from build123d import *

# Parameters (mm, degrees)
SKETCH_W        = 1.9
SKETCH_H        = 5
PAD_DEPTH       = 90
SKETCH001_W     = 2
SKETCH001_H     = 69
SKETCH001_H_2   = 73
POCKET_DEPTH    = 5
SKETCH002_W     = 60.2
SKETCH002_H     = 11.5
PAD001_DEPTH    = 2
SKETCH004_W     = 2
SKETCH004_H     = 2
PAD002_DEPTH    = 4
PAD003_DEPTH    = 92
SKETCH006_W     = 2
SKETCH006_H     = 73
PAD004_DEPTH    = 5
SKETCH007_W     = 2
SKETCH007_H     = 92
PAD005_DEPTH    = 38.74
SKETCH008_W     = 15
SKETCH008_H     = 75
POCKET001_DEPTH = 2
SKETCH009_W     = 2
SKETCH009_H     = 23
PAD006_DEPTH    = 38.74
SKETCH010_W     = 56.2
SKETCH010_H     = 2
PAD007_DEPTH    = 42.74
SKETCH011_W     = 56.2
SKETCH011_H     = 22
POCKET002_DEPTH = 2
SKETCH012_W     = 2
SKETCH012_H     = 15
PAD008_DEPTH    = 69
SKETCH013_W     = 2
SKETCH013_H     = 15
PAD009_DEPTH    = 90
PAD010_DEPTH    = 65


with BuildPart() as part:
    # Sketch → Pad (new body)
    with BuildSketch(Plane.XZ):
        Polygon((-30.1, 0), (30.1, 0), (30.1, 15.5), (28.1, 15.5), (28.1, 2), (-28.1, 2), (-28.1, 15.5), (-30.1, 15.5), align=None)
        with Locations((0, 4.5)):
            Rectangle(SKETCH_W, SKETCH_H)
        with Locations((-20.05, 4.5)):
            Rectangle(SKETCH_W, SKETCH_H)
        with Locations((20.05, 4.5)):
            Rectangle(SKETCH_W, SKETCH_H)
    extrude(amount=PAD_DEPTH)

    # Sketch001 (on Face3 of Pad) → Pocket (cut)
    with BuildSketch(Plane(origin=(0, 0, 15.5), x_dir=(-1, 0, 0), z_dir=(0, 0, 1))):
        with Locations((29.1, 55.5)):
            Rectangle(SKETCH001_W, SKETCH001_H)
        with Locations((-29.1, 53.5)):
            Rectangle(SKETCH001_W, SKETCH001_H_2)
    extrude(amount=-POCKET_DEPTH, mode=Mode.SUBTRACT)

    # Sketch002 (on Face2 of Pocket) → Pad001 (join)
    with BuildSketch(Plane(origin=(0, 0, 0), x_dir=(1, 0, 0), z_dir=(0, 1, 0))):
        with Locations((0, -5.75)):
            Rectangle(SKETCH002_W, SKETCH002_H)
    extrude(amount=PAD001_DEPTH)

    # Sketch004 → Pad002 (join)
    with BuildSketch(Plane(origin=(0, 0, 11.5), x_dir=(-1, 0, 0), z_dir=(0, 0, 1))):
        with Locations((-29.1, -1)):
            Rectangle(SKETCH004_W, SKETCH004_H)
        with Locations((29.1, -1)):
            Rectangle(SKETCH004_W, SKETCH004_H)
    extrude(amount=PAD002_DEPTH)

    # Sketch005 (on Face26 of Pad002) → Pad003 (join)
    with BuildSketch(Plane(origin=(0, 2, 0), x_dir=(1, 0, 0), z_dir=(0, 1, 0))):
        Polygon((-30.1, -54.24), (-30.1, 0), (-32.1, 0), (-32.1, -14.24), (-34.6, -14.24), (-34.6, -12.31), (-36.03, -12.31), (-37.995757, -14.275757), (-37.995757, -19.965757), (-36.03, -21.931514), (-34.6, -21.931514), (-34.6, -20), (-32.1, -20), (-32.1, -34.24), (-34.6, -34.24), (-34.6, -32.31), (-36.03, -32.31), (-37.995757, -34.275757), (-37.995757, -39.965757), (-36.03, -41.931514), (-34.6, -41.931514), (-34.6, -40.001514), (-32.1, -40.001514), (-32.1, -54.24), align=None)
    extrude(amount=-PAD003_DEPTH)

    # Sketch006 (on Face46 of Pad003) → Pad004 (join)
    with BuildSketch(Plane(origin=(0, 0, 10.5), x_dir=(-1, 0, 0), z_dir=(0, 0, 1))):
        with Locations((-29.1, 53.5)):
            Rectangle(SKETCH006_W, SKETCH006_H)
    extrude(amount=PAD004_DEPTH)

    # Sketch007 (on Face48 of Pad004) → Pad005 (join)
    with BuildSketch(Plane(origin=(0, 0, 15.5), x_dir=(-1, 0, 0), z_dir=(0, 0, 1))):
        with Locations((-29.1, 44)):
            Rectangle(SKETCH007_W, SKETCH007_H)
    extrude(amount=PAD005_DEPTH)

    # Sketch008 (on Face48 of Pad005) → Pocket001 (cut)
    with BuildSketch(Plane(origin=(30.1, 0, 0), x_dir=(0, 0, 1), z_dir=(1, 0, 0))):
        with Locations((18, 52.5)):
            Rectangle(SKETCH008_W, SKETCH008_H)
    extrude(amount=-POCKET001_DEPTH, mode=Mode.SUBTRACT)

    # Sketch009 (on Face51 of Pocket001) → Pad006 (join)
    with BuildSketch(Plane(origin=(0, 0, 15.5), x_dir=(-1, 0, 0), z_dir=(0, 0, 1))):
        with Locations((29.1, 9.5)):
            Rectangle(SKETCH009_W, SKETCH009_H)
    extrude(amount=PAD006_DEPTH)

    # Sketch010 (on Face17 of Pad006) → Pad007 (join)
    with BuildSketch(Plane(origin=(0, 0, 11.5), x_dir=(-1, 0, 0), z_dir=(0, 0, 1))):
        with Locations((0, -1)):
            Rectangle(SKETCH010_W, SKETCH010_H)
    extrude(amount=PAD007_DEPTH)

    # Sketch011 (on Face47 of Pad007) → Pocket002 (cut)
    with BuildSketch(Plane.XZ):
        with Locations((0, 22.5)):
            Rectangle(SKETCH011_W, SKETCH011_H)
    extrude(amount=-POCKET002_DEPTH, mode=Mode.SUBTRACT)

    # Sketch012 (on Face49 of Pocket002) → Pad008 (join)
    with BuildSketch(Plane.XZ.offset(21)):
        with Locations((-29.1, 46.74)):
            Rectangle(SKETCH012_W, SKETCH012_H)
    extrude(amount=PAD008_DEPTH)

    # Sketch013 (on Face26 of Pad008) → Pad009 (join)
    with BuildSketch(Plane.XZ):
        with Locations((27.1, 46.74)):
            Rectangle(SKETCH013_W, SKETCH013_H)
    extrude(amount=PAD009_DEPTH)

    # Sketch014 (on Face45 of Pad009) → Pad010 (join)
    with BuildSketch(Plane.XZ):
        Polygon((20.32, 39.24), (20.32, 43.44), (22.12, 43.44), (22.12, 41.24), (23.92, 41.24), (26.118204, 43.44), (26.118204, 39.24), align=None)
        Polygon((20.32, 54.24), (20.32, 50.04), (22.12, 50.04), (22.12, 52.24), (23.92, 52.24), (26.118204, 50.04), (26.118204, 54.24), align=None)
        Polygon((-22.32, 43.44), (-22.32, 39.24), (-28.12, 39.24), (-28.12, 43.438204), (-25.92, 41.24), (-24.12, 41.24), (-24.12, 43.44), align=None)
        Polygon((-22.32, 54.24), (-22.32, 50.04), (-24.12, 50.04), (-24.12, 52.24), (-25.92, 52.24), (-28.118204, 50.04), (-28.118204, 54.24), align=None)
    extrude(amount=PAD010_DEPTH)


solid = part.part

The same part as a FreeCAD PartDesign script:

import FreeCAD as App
import Part
import Sketcher
from FreeCAD import Vector
Q = App.Units.Quantity

doc = App.newDocument("Part")
body = doc.addObject("PartDesign::Body", "Body")

sketch1 = body.newObject("Sketcher::SketchObject", "Sketch")
sketch1.AttachmentSupport = (doc.getObject("XZ_Plane"), [""])
sketch1.MapMode = "FlatFace"
sketch1.addGeometry(Part.LineSegment(Vector(-30.1, 0, 0), Vector(30.1, 0, 0)), False)
sketch1.addGeometry(Part.LineSegment(Vector(30.1, 0, 0), Vector(30.1, 15.5, 0)), False)
sketch1.addGeometry(Part.LineSegment(Vector(30.1, 15.5, 0), Vector(28.1, 15.5, 0)), False)
sketch1.addGeometry(Part.LineSegment(Vector(28.1, 15.5, 0), Vector(28.1, 2, 0)), False)
sketch1.addGeometry(Part.LineSegment(Vector(28.1, 2, 0), Vector(21, 2, 0)), False)
sketch1.addGeometry(Part.LineSegment(Vector(21, 2, 0), Vector(21, 7, 0)), False)
sketch1.addGeometry(Part.LineSegment(Vector(21, 7, 0), Vector(19.1, 7, 0)), False)
sketch1.addGeometry(Part.LineSegment(Vector(19.1, 7, 0), Vector(19.1, 2, 0)), False)
sketch1.addGeometry(Part.LineSegment(Vector(19.1, 2, 0), Vector(0.95, 2, 0)), False)
sketch1.addGeometry(Part.LineSegment(Vector(0.95, 2, 0), Vector(0.95, 7, 0)), False)
sketch1.addGeometry(Part.LineSegment(Vector(0.95, 7, 0), Vector(-0.95, 7, 0)), False)
sketch1.addGeometry(Part.LineSegment(Vector(-0.95, 7, 0), Vector(-0.95, 2, 0)), False)
sketch1.addGeometry(Part.LineSegment(Vector(-0.95, 2, 0), Vector(-19.1, 2, 0)), False)
sketch1.addGeometry(Part.LineSegment(Vector(-19.1, 2, 0), Vector(-19.1, 7, 0)), False)
sketch1.addGeometry(Part.LineSegment(Vector(-19.1, 7, 0), Vector(-21, 7, 0)), False)
sketch1.addGeometry(Part.LineSegment(Vector(-21, 7, 0), Vector(-21, 2, 0)), False)
sketch1.addGeometry(Part.LineSegment(Vector(-21, 2, 0), Vector(-28.1, 2, 0)), False)
sketch1.addGeometry(Part.LineSegment(Vector(-28.1, 2, 0), Vector(-28.1, 15.5, 0)), False)
sketch1.addGeometry(Part.LineSegment(Vector(-28.1, 15.5, 0), Vector(-30.1, 15.5, 0)), False)
sketch1.addGeometry(Part.LineSegment(Vector(-30.1, 15.5, 0), Vector(-30.1, 0, 0)), False)
sketch1.addConstraint(Sketcher.Constraint("Coincident", 0, 2, 1, 1))
sketch1.addConstraint(Sketcher.Constraint("Coincident", 1, 2, 2, 1))
sketch1.addConstraint(Sketcher.Constraint("Coincident", 2, 2, 3, 1))
sketch1.addConstraint(Sketcher.Constraint("Coincident", 3, 2, 4, 1))
sketch1.addConstraint(Sketcher.Constraint("Coincident", 4, 2, 5, 1))
sketch1.addConstraint(Sketcher.Constraint("Coincident", 5, 2, 6, 1))
sketch1.addConstraint(Sketcher.Constraint("Coincident", 6, 2, 7, 1))
sketch1.addConstraint(Sketcher.Constraint("Coincident", 7, 2, 8, 1))
sketch1.addConstraint(Sketcher.Constraint("Coincident", 8, 2, 9, 1))
sketch1.addConstraint(Sketcher.Constraint("Coincident", 9, 2, 10, 1))
sketch1.addConstraint(Sketcher.Constraint("Coincident", 10, 2, 11, 1))
sketch1.addConstraint(Sketcher.Constraint("Coincident", 11, 2, 12, 1))
sketch1.addConstraint(Sketcher.Constraint("Coincident", 12, 2, 13, 1))
sketch1.addConstraint(Sketcher.Constraint("Coincident", 13, 2, 14, 1))
sketch1.addConstraint(Sketcher.Constraint("Coincident", 14, 2, 15, 1))
sketch1.addConstraint(Sketcher.Constraint("Coincident", 15, 2, 16, 1))
sketch1.addConstraint(Sketcher.Constraint("Coincident", 16, 2, 17, 1))
sketch1.addConstraint(Sketcher.Constraint("Coincident", 17, 2, 18, 1))
sketch1.addConstraint(Sketcher.Constraint("Coincident", 18, 2, 19, 1))
sketch1.addConstraint(Sketcher.Constraint("Coincident", 19, 2, 0, 1))
sketch1.addConstraint(Sketcher.Constraint("Horizontal", 0))
sketch1.addConstraint(Sketcher.Constraint("Vertical", 1))
sketch1.addConstraint(Sketcher.Constraint("Horizontal", 2))
sketch1.addConstraint(Sketcher.Constraint("Vertical", 3))
sketch1.addConstraint(Sketcher.Constraint("Horizontal", 4))
sketch1.addConstraint(Sketcher.Constraint("Vertical", 5))
sketch1.addConstraint(Sketcher.Constraint("Horizontal", 6))
sketch1.addConstraint(Sketcher.Constraint("Vertical", 7))
sketch1.addConstraint(Sketcher.Constraint("Horizontal", 8))
sketch1.addConstraint(Sketcher.Constraint("Vertical", 9))
sketch1.addConstraint(Sketcher.Constraint("Horizontal", 10))
sketch1.addConstraint(Sketcher.Constraint("Vertical", 11))
sketch1.addConstraint(Sketcher.Constraint("Horizontal", 12))
sketch1.addConstraint(Sketcher.Constraint("Vertical", 13))
sketch1.addConstraint(Sketcher.Constraint("Horizontal", 14))
sketch1.addConstraint(Sketcher.Constraint("Vertical", 15))
sketch1.addConstraint(Sketcher.Constraint("Horizontal", 16))
sketch1.addConstraint(Sketcher.Constraint("Vertical", 17))
sketch1.addConstraint(Sketcher.Constraint("Horizontal", 18))
sketch1.addConstraint(Sketcher.Constraint("Vertical", 19))
sketch1.addConstraint(Sketcher.Constraint("Symmetric", 0, 2, 19, 2, -1, 1))
sketch1.addConstraint(Sketcher.Constraint("Symmetric", 8, 2, 11, 2, -2))
sketch1.addConstraint(Sketcher.Constraint("Symmetric", 6, 2, 13, 2, -2))
sketch1.addConstraint(Sketcher.Constraint("Symmetric", 4, 2, 15, 2, -2))
sketch1.addConstraint(Sketcher.Constraint("Symmetric", 2, 2, 17, 2, -2))
sketch1.addConstraint(Sketcher.Constraint("Horizontal", 4, 2, 7, 2))
sketch1.addConstraint(Sketcher.Constraint("Horizontal", 6, 2, 9, 2))
sketch1.addConstraint(Sketcher.Constraint("Equal", 6, 10))
sketch1.addConstraint(Sketcher.Constraint("DistanceX", 2, 2, 2, 1, Q("2 mm")))
sketch1.addConstraint(Sketcher.Constraint("DistanceY", 5, 1, 5, 2, Q("5 mm")))
sketch1.addConstraint(Sketcher.Constraint("DistanceX", 0, 1, 0, 2, Q("60.2 mm")))
sketch1.addConstraint(Sketcher.Constraint("DistanceX", 4, 2, 4, 1, Q("7.1 mm")))
sketch1.addConstraint(Sketcher.Constraint("DistanceX", 6, 2, 6, 1, Q("1.9 mm")))
sketch1.addConstraint(Sketcher.Constraint("DistanceY", 1, 1, 1, 2, Q("15.5 mm")))
sketch1.addConstraint(Sketcher.Constraint("DistanceY", 3, 2, 3, 1, Q("13.5 mm")))
pad1 = body.newObject("PartDesign::Pad", "Pad")
pad1.Profile = sketch1
pad1.Length = 90

sketch2 = body.newObject("Sketcher::SketchObject", "Sketch001")
sketch2.AttachmentSupport = (doc.getObject("XY_Plane"), [""])
sketch2.MapMode = "FlatFace"
sketch2.AttachmentOffset = App.Placement(Vector(0, 0, 15.5), App.Rotation())
sketch2.addGeometry(Part.LineSegment(Vector(-28.1, -90, 0), Vector(-28.1, -21, 0)), False)
sketch2.addGeometry(Part.LineSegment(Vector(-28.1, -21, 0), Vector(-30.1, -21, 0)), False)
sketch2.addGeometry(Part.LineSegment(Vector(-30.1, -21, 0), Vector(-30.1, -90, 0)), False)
sketch2.addGeometry(Part.LineSegment(Vector(-30.1, -90, 0), Vector(-28.1, -90, 0)), False)
sketch2.addGeometry(Part.LineSegment(Vector(30.1, -90, 0), Vector(30.1, -17, 0)), False)
sketch2.addGeometry(Part.LineSegment(Vector(30.1, -17, 0), Vector(28.1, -17, 0)), False)
sketch2.addGeometry(Part.LineSegment(Vector(28.1, -17, 0), Vector(28.1, -90, 0)), False)
sketch2.addGeometry(Part.LineSegment(Vector(28.1, -90, 0), Vector(30.1, -90, 0)), False)
sketch2.addConstraint(Sketcher.Constraint("Coincident", 0, 2, 1, 1))
sketch2.addConstraint(Sketcher.Constraint("Coincident", 1, 2, 2, 1))
sketch2.addConstraint(Sketcher.Constraint("Coincident", 2, 2, 3, 1))
sketch2.addConstraint(Sketcher.Constraint("Coincident", 3, 2, 0, 1))
sketch2.addConstraint(Sketcher.Constraint("Coincident", 4, 2, 5, 1))
sketch2.addConstraint(Sketcher.Constraint("Coincident", 5, 2, 6, 1))
sketch2.addConstraint(Sketcher.Constraint("Coincident", 6, 2, 7, 1))
sketch2.addConstraint(Sketcher.Constraint("Coincident", 7, 2, 4, 1))
sketch2.addConstraint(Sketcher.Constraint("Vertical", 0))
sketch2.addConstraint(Sketcher.Constraint("Horizontal", 1))
sketch2.addConstraint(Sketcher.Constraint("Vertical", 2))
sketch2.addConstraint(Sketcher.Constraint("Horizontal", 3))
sketch2.addConstraint(Sketcher.Constraint("Vertical", 4))
sketch2.addConstraint(Sketcher.Constraint("Horizontal", 5))
sketch2.addConstraint(Sketcher.Constraint("Vertical", 6))
sketch2.addConstraint(Sketcher.Constraint("Horizontal", 7))
sketch2.addConstraint(Sketcher.Constraint("Symmetric", 3, 2, 6, 2, -2))
sketch2.addConstraint(Sketcher.Constraint("Equal", 3, 5))
sketch2.addConstraint(Sketcher.Constraint("DistanceX", 1, 2, 1, 1, Q("2 mm")))
sketch2.addConstraint(Sketcher.Constraint("DistanceY", 0, 1, 0, 2, Q("69 mm")))
sketch2.addConstraint(Sketcher.Constraint("DistanceY", 4, 1, 4, 2, Q("73 mm")))
sketch2.addConstraint(Sketcher.Constraint("DistanceY", 0, 2, -1, 1, Q("21 mm")))
sketch2.addConstraint(Sketcher.Constraint("DistanceX", 0, 2, -1, 1, Q("28.1 mm")))
pocket1 = body.newObject("PartDesign::Pocket", "Pocket")
pocket1.Profile = sketch2
pocket1.Length = 5

sketch3 = body.newObject("Sketcher::SketchObject", "Sketch002")
sketch3.AttachmentSupport = (doc.getObject("XZ_Plane"), [""])
sketch3.MapMode = "FlatFace"
sketch3.addGeometry(Part.LineSegment(Vector(-30.1, 0, 0), Vector(-30.1, 11.5, 0)), False)
sketch3.addGeometry(Part.LineSegment(Vector(-30.1, 11.5, 0), Vector(30.1, 11.5, 0)), False)
sketch3.addGeometry(Part.LineSegment(Vector(30.1, 11.5, 0), Vector(30.1, 0, 0)), False)
sketch3.addGeometry(Part.LineSegment(Vector(30.1, 0, 0), Vector(-30.1, 0, 0)), False)
sketch3.addConstraint(Sketcher.Constraint("Coincident", 0, 2, 1, 1))
sketch3.addConstraint(Sketcher.Constraint("Coincident", 1, 2, 2, 1))
sketch3.addConstraint(Sketcher.Constraint("Coincident", 2, 2, 3, 1))
sketch3.addConstraint(Sketcher.Constraint("Coincident", 3, 2, 0, 1))
sketch3.addConstraint(Sketcher.Constraint("Vertical", 0))
sketch3.addConstraint(Sketcher.Constraint("Horizontal", 1))
sketch3.addConstraint(Sketcher.Constraint("Vertical", 2))
sketch3.addConstraint(Sketcher.Constraint("Horizontal", 3))
sketch3.addConstraint(Sketcher.Constraint("Symmetric", 2, 2, 3, 2, -1, 1))
sketch3.addConstraint(Sketcher.Constraint("DistanceX", 1, 1, 1, 2, Q("60.2 mm")))
sketch3.addConstraint(Sketcher.Constraint("DistanceY", 0, 1, 0, 2, Q("11.5 mm")))
pad2 = body.newObject("PartDesign::Pad", "Pad001")
pad2.Profile = sketch3
pad2.Length = 2
pad2.Reversed = True

sketch4 = body.newObject("Sketcher::SketchObject", "Sketch003")
sketch4.AttachmentSupport = (doc.getObject("XY_Plane"), [""])
sketch4.MapMode = "FlatFace"
sketch4.AttachmentOffset = App.Placement(Vector(0, 0, 11.5), App.Rotation())
sketch4.addGeometry(Part.LineSegment(Vector(30.1, 0, 0), Vector(30.1, 2, 0)), False)
sketch4.addGeometry(Part.LineSegment(Vector(30.1, 2, 0), Vector(28.1, 2, 0)), False)
sketch4.addGeometry(Part.LineSegment(Vector(28.1, 2, 0), Vector(28.1, 0, 0)), False)
sketch4.addGeometry(Part.LineSegment(Vector(28.1, 0, 0), Vector(30.1, 0, 0)), False)
sketch4.addGeometry(Part.LineSegment(Vector(-28.1, 0, 0), Vector(-28.1, 2, 0)), False)
sketch4.addGeometry(Part.LineSegment(Vector(-28.1, 2, 0), Vector(-30.1, 2, 0)), False)
sketch4.addGeometry(Part.LineSegment(Vector(-30.1, 2, 0), Vector(-30.1, 0, 0)), False)
sketch4.addGeometry(Part.LineSegment(Vector(-30.1, 0, 0), Vector(-28.1, 0, 0)), False)
sketch4.addConstraint(Sketcher.Constraint("Coincident", 0, 2, 1, 1))
sketch4.addConstraint(Sketcher.Constraint("Coincident", 1, 2, 2, 1))
sketch4.addConstraint(Sketcher.Constraint("Coincident", 2, 2, 3, 1))
sketch4.addConstraint(Sketcher.Constraint("Coincident", 3, 2, 0, 1))
sketch4.addConstraint(Sketcher.Constraint("Coincident", 4, 2, 5, 1))
sketch4.addConstraint(Sketcher.Constraint("Coincident", 5, 2, 6, 1))
sketch4.addConstraint(Sketcher.Constraint("Coincident", 6, 2, 7, 1))
sketch4.addConstraint(Sketcher.Constraint("Coincident", 7, 2, 4, 1))
sketch4.addConstraint(Sketcher.Constraint("Vertical", 0))
sketch4.addConstraint(Sketcher.Constraint("Horizontal", 1))
sketch4.addConstraint(Sketcher.Constraint("Vertical", 2))
sketch4.addConstraint(Sketcher.Constraint("Horizontal", 3))
sketch4.addConstraint(Sketcher.Constraint("Vertical", 4))
sketch4.addConstraint(Sketcher.Constraint("Horizontal", 5))
sketch4.addConstraint(Sketcher.Constraint("Vertical", 6))
sketch4.addConstraint(Sketcher.Constraint("Horizontal", 7))
sketch4.addConstraint(Sketcher.Constraint("Symmetric", 3, 2, 6, 2, -1, 1))
sketch4.addConstraint(Sketcher.Constraint("Symmetric", 1, 2, 4, 2, -2))
sketch4.addConstraint(Sketcher.Constraint("PointOnObject", 2, 2, -1))
sketch4.addConstraint(Sketcher.Constraint("Equal", 7, 0))
sketch4.addConstraint(Sketcher.Constraint("DistanceX", 1, 2, 1, 1, Q("2 mm")))
sketch4.addConstraint(Sketcher.Constraint("DistanceX", -1, 1, 0, 2, Q("30.1 mm")))
pad3 = body.newObject("PartDesign::Pad", "Pad002")
pad3.Profile = sketch4
pad3.Length = 4

sketch5 = body.newObject("Sketcher::SketchObject", "Sketch004")
sketch5.AttachmentSupport = (doc.getObject("XZ_Plane"), [""])
sketch5.MapMode = "FlatFace"
sketch5.AttachmentOffset = App.Placement(Vector(0, 0, -2), App.Rotation())
sketch5.addGeometry(Part.LineSegment(Vector(-30.1, 54.24, 0), Vector(-30.1, 0, 0)), False)
sketch5.addGeometry(Part.LineSegment(Vector(-30.1, 0, 0), Vector(-32.1, 0, 0)), False)
sketch5.addGeometry(Part.LineSegment(Vector(-32.1, 0, 0), Vector(-32.1, 14.24, 0)), False)
sketch5.addGeometry(Part.LineSegment(Vector(-32.1, 14.24, 0), Vector(-34.6, 14.24, 0)), False)
sketch5.addGeometry(Part.LineSegment(Vector(-34.6, 14.24, 0), Vector(-34.6, 12.31, 0)), False)
sketch5.addGeometry(Part.LineSegment(Vector(-34.6, 12.31, 0), Vector(-36.03, 12.31, 0)), False)
sketch5.addGeometry(Part.LineSegment(Vector(-36.03, 12.31, 0), Vector(-37.995757, 14.275757, 0)), False)
sketch5.addGeometry(Part.LineSegment(Vector(-37.995757, 14.275757, 0), Vector(-37.995757, 19.965757, 0)), False)
sketch5.addGeometry(Part.LineSegment(Vector(-37.995757, 19.965757, 0), Vector(-36.03, 21.931514, 0)), False)
sketch5.addGeometry(Part.LineSegment(Vector(-36.03, 21.931514, 0), Vector(-34.6, 21.931514, 0)), False)
sketch5.addGeometry(Part.LineSegment(Vector(-34.6, 21.931514, 0), Vector(-34.6, 20, 0)), False)
sketch5.addGeometry(Part.LineSegment(Vector(-34.6, 20, 0), Vector(-32.1, 20, 0)), False)
sketch5.addGeometry(Part.LineSegment(Vector(-32.1, 20, 0), Vector(-32.1, 34.24, 0)), False)
sketch5.addGeometry(Part.LineSegment(Vector(-32.1, 34.24, 0), Vector(-34.6, 34.24, 0)), False)
sketch5.addGeometry(Part.LineSegment(Vector(-34.6, 34.24, 0), Vector(-34.6, 32.31, 0)), False)
sketch5.addGeometry(Part.LineSegment(Vector(-34.6, 32.31, 0), Vector(-36.03, 32.31, 0)), False)
sketch5.addGeometry(Part.LineSegment(Vector(-36.03, 32.31, 0), Vector(-37.995757, 34.275757, 0)), False)
sketch5.addGeometry(Part.LineSegment(Vector(-37.995757, 34.275757, 0), Vector(-37.995757, 39.965757, 0)), False)
sketch5.addGeometry(Part.LineSegment(Vector(-37.995757, 39.965757, 0), Vector(-36.03, 41.931514, 0)), False)
sketch5.addGeometry(Part.LineSegment(Vector(-36.03, 41.931514, 0), Vector(-34.6, 41.931514, 0)), False)
sketch5.addGeometry(Part.LineSegment(Vector(-34.6, 41.931514, 0), Vector(-34.6, 40.001514, 0)), False)
sketch5.addGeometry(Part.LineSegment(Vector(-34.6, 40.001514, 0), Vector(-32.1, 40.001514, 0)), False)
sketch5.addGeometry(Part.LineSegment(Vector(-32.1, 40.001514, 0), Vector(-32.1, 54.24, 0)), False)
sketch5.addGeometry(Part.LineSegment(Vector(-32.1, 54.24, 0), Vector(-30.1, 54.24, 0)), False)
sketch5.addConstraint(Sketcher.Constraint("Coincident", 0, 2, 1, 1))
sketch5.addConstraint(Sketcher.Constraint("Coincident", 1, 2, 2, 1))
sketch5.addConstraint(Sketcher.Constraint("Coincident", 2, 2, 3, 1))
sketch5.addConstraint(Sketcher.Constraint("Coincident", 3, 2, 4, 1))
sketch5.addConstraint(Sketcher.Constraint("Coincident", 4, 2, 5, 1))
sketch5.addConstraint(Sketcher.Constraint("Coincident", 5, 2, 6, 1))
sketch5.addConstraint(Sketcher.Constraint("Coincident", 6, 2, 7, 1))
sketch5.addConstraint(Sketcher.Constraint("Coincident", 7, 2, 8, 1))
sketch5.addConstraint(Sketcher.Constraint("Coincident", 8, 2, 9, 1))
sketch5.addConstraint(Sketcher.Constraint("Coincident", 9, 2, 10, 1))
sketch5.addConstraint(Sketcher.Constraint("Coincident", 10, 2, 11, 1))
sketch5.addConstraint(Sketcher.Constraint("Coincident", 11, 2, 12, 1))
sketch5.addConstraint(Sketcher.Constraint("Coincident", 12, 2, 13, 1))
sketch5.addConstraint(Sketcher.Constraint("Coincident", 13, 2, 14, 1))
sketch5.addConstraint(Sketcher.Constraint("Coincident", 14, 2, 15, 1))
sketch5.addConstraint(Sketcher.Constraint("Coincident", 15, 2, 16, 1))
sketch5.addConstraint(Sketcher.Constraint("Coincident", 16, 2, 17, 1))
sketch5.addConstraint(Sketcher.Constraint("Coincident", 17, 2, 18, 1))
sketch5.addConstraint(Sketcher.Constraint("Coincident", 18, 2, 19, 1))
sketch5.addConstraint(Sketcher.Constraint("Coincident", 19, 2, 20, 1))
sketch5.addConstraint(Sketcher.Constraint("Coincident", 20, 2, 21, 1))
sketch5.addConstraint(Sketcher.Constraint("Coincident", 21, 2, 22, 1))
sketch5.addConstraint(Sketcher.Constraint("Coincident", 22, 2, 23, 1))
sketch5.addConstraint(Sketcher.Constraint("Coincident", 23, 2, 0, 1))
sketch5.addConstraint(Sketcher.Constraint("Vertical", 0))
sketch5.addConstraint(Sketcher.Constraint("Horizontal", 1))
sketch5.addConstraint(Sketcher.Constraint("Vertical", 2))
sketch5.addConstraint(Sketcher.Constraint("Horizontal", 3))
sketch5.addConstraint(Sketcher.Constraint("Vertical", 4))
sketch5.addConstraint(Sketcher.Constraint("Horizontal", 5))
sketch5.addConstraint(Sketcher.Constraint("Vertical", 7))
sketch5.addConstraint(Sketcher.Constraint("Horizontal", 9))
sketch5.addConstraint(Sketcher.Constraint("Vertical", 10))
sketch5.addConstraint(Sketcher.Constraint("Horizontal", 11))
sketch5.addConstraint(Sketcher.Constraint("Vertical", 12))
sketch5.addConstraint(Sketcher.Constraint("Horizontal", 13))
sketch5.addConstraint(Sketcher.Constraint("Vertical", 14))
sketch5.addConstraint(Sketcher.Constraint("Horizontal", 15))
sketch5.addConstraint(Sketcher.Constraint("Vertical", 17))
sketch5.addConstraint(Sketcher.Constraint("Horizontal", 19))
sketch5.addConstraint(Sketcher.Constraint("Vertical", 20))
sketch5.addConstraint(Sketcher.Constraint("Horizontal", 21))
sketch5.addConstraint(Sketcher.Constraint("Vertical", 22))
sketch5.addConstraint(Sketcher.Constraint("Horizontal", 23))
sketch5.addConstraint(Sketcher.Constraint("PointOnObject", 0, 2, -1))
sketch5.addConstraint(Sketcher.Constraint("Perpendicular", 6, 8))
sketch5.addConstraint(Sketcher.Constraint("Perpendicular", 8, 16))
sketch5.addConstraint(Sketcher.Constraint("Perpendicular", 16, 18))
sketch5.addConstraint(Sketcher.Constraint("Vertical", 5, 2, 8, 2))
sketch5.addConstraint(Sketcher.Constraint("Vertical", 4, 2, 9, 2))
sketch5.addConstraint(Sketcher.Constraint("Vertical", 2, 2, 11, 2))
sketch5.addConstraint(Sketcher.Constraint("Vertical", 10, 2, 13, 2))
sketch5.addConstraint(Sketcher.Constraint("Vertical", 8, 2, 15, 2))
sketch5.addConstraint(Sketcher.Constraint("Vertical", 7, 2, 16, 2))
sketch5.addConstraint(Sketcher.Constraint("Vertical", 15, 2, 18, 2))
sketch5.addConstraint(Sketcher.Constraint("Vertical", 14, 2, 19, 2))
sketch5.addConstraint(Sketcher.Constraint("Vertical", 12, 2, 21, 2))
sketch5.addConstraint(Sketcher.Constraint("Equal", 2, 12))
sketch5.addConstraint(Sketcher.Constraint("Equal", 4, 14))
sketch5.addConstraint(Sketcher.Constraint("Equal", 7, 17))
sketch5.addConstraint(Sketcher.Constraint("Equal", 14, 20))
sketch5.addConstraint(Sketcher.Constraint("Equal", 6, 8))
sketch5.addConstraint(Sketcher.Constraint("DistanceX", 1, 2, 1, 1, Q("2 mm")))
sketch5.addConstraint(Sketcher.Constraint("DistanceX", 3, 2, 3, 1, Q("2.5 mm")))
sketch5.addConstraint(Sketcher.Constraint("DistanceY", -1, 1, 10, 2, Q("20 mm")))
sketch5.addConstraint(Sketcher.Constraint("DistanceX", 5, 2, 5, 1, Q("1.43 mm")))
sketch5.addConstraint(Sketcher.Constraint("DistanceY", 0, 2, 0, 1, Q("54.24 mm")))
sketch5.addConstraint(Sketcher.Constraint("DistanceY", 2, 1, 2, 2, Q("14.24 mm")))
sketch5.addConstraint(Sketcher.Constraint("DistanceY", 4, 2, 4, 1, Q("1.93 mm")))
sketch5.addConstraint(Sketcher.Constraint("DistanceY", 7, 1, 7, 2, Q("5.69 mm")))
sketch5.addConstraint(Sketcher.Constraint("DistanceX", 0, 2, -1, 1, Q("30.1 mm")))
sketch5.addConstraint(Sketcher.Constraint("Distance", 6, Q("2.78 mm")))
pad4 = body.newObject("PartDesign::Pad", "Pad003")
pad4.Profile = sketch5
pad4.Length = 92

sketch6 = body.newObject("Sketcher::SketchObject", "Sketch005")
sketch6.AttachmentSupport = (doc.getObject("XY_Plane"), [""])
sketch6.MapMode = "FlatFace"
sketch6.AttachmentOffset = App.Placement(Vector(0, 0, 10.5), App.Rotation())
sketch6.addGeometry(Part.LineSegment(Vector(30.1, -90, 0), Vector(30.1, -17, 0)), False)
sketch6.addGeometry(Part.LineSegment(Vector(30.1, -17, 0), Vector(28.1, -17, 0)), False)
sketch6.addGeometry(Part.LineSegment(Vector(28.1, -17, 0), Vector(28.1, -90, 0)), False)
sketch6.addGeometry(Part.LineSegment(Vector(28.1, -90, 0), Vector(30.1, -90, 0)), False)
sketch6.addConstraint(Sketcher.Constraint("Coincident", 0, 2, 1, 1))
sketch6.addConstraint(Sketcher.Constraint("Coincident", 1, 2, 2, 1))
sketch6.addConstraint(Sketcher.Constraint("Coincident", 2, 2, 3, 1))
sketch6.addConstraint(Sketcher.Constraint("Coincident", 3, 2, 0, 1))
sketch6.addConstraint(Sketcher.Constraint("Vertical", 0))
sketch6.addConstraint(Sketcher.Constraint("Horizontal", 1))
sketch6.addConstraint(Sketcher.Constraint("Vertical", 2))
sketch6.addConstraint(Sketcher.Constraint("Horizontal", 3))
sketch6.addConstraint(Sketcher.Constraint("DistanceX", 1, 2, 1, 1, Q("2 mm")))
sketch6.addConstraint(Sketcher.Constraint("DistanceY", 0, 1, 0, 2, Q("73 mm")))
sketch6.addConstraint(Sketcher.Constraint("DistanceY", 0, 2, -1, 1, Q("17 mm")))
sketch6.addConstraint(Sketcher.Constraint("DistanceX", -1, 1, 0, 2, Q("30.1 mm")))
pad5 = body.newObject("PartDesign::Pad", "Pad004")
pad5.Profile = sketch6
pad5.Length = 5

sketch7 = body.newObject("Sketcher::SketchObject", "Sketch006")
sketch7.AttachmentSupport = (doc.getObject("XY_Plane"), [""])
sketch7.MapMode = "FlatFace"
sketch7.AttachmentOffset = App.Placement(Vector(0, 0, 15.5), App.Rotation())
sketch7.addGeometry(Part.LineSegment(Vector(30.1, -90, 0), Vector(30.1, 2, 0)), False)
sketch7.addGeometry(Part.LineSegment(Vector(30.1, 2, 0), Vector(28.1, 2, 0)), False)
sketch7.addGeometry(Part.LineSegment(Vector(28.1, 2, 0), Vector(28.1, -90, 0)), False)
sketch7.addGeometry(Part.LineSegment(Vector(28.1, -90, 0), Vector(30.1, -90, 0)), False)
sketch7.addConstraint(Sketcher.Constraint("Coincident", 0, 2, 1, 1))
sketch7.addConstraint(Sketcher.Constraint("Coincident", 1, 2, 2, 1))
sketch7.addConstraint(Sketcher.Constraint("Coincident", 2, 2, 3, 1))
sketch7.addConstraint(Sketcher.Constraint("Coincident", 3, 2, 0, 1))
sketch7.addConstraint(Sketcher.Constraint("Vertical", 0))
sketch7.addConstraint(Sketcher.Constraint("Horizontal", 1))
sketch7.addConstraint(Sketcher.Constraint("Vertical", 2))
sketch7.addConstraint(Sketcher.Constraint("Horizontal", 3))
sketch7.addConstraint(Sketcher.Constraint("DistanceX", 1, 2, 1, 1, Q("2 mm")))
sketch7.addConstraint(Sketcher.Constraint("DistanceY", 0, 1, 0, 2, Q("92 mm")))
sketch7.addConstraint(Sketcher.Constraint("DistanceY", -1, 1, 0, 2, Q("2 mm")))
sketch7.addConstraint(Sketcher.Constraint("DistanceX", -1, 1, 0, 2, Q("30.1 mm")))
pad6 = body.newObject("PartDesign::Pad", "Pad005")
pad6.Profile = sketch7
pad6.Length = 38.74

sketch8 = body.newObject("Sketcher::SketchObject", "Sketch007")
sketch8.AttachmentSupport = (doc.getObject("YZ_Plane"), [""])
sketch8.MapMode = "FlatFace"
sketch8.AttachmentOffset = App.Placement(Vector(0, 0, 30.1), App.Rotation())
sketch8.addGeometry(Part.LineSegment(Vector(-90, 10.5, 0), Vector(-15, 10.5, 0)), False)
sketch8.addGeometry(Part.LineSegment(Vector(-15, 10.5, 0), Vector(-15, 25.5, 0)), False)
sketch8.addGeometry(Part.LineSegment(Vector(-15, 25.5, 0), Vector(-90, 25.5, 0)), False)
sketch8.addGeometry(Part.LineSegment(Vector(-90, 25.5, 0), Vector(-90, 10.5, 0)), False)
sketch8.addConstraint(Sketcher.Constraint("Coincident", 0, 2, 1, 1))
sketch8.addConstraint(Sketcher.Constraint("Coincident", 1, 2, 2, 1))
sketch8.addConstraint(Sketcher.Constraint("Coincident", 2, 2, 3, 1))
sketch8.addConstraint(Sketcher.Constraint("Coincident", 3, 2, 0, 1))
sketch8.addConstraint(Sketcher.Constraint("Horizontal", 0))
sketch8.addConstraint(Sketcher.Constraint("Vertical", 1))
sketch8.addConstraint(Sketcher.Constraint("Horizontal", 2))
sketch8.addConstraint(Sketcher.Constraint("Vertical", 3))
sketch8.addConstraint(Sketcher.Constraint("DistanceX", 0, 1, 0, 2, Q("75 mm")))
sketch8.addConstraint(Sketcher.Constraint("DistanceY", 1, 1, 1, 2, Q("15 mm")))
sketch8.addConstraint(Sketcher.Constraint("DistanceX", 0, 2, -1, 1, Q("15 mm")))
sketch8.addConstraint(Sketcher.Constraint("DistanceY", -1, 1, 0, 2, Q("10.5 mm")))
pocket2 = body.newObject("PartDesign::Pocket", "Pocket001")
pocket2.Profile = sketch8
pocket2.Length = 2

sketch9 = body.newObject("Sketcher::SketchObject", "Sketch008")
sketch9.AttachmentSupport = (doc.getObject("XY_Plane"), [""])
sketch9.MapMode = "FlatFace"
sketch9.AttachmentOffset = App.Placement(Vector(0, 0, 15.5), App.Rotation())
sketch9.addGeometry(Part.LineSegment(Vector(-28.1, -21, 0), Vector(-28.1, 2, 0)), False)
sketch9.addGeometry(Part.LineSegment(Vector(-28.1, 2, 0), Vector(-30.1, 2, 0)), False)
sketch9.addGeometry(Part.LineSegment(Vector(-30.1, 2, 0), Vector(-30.1, -21, 0)), False)
sketch9.addGeometry(Part.LineSegment(Vector(-30.1, -21, 0), Vector(-28.1, -21, 0)), False)
sketch9.addConstraint(Sketcher.Constraint("Coincident", 0, 2, 1, 1))
sketch9.addConstraint(Sketcher.Constraint("Coincident", 1, 2, 2, 1))
sketch9.addConstraint(Sketcher.Constraint("Coincident", 2, 2, 3, 1))
sketch9.addConstraint(Sketcher.Constraint("Coincident", 3, 2, 0, 1))
sketch9.addConstraint(Sketcher.Constraint("Vertical", 0))
sketch9.addConstraint(Sketcher.Constraint("Horizontal", 1))
sketch9.addConstraint(Sketcher.Constraint("Vertical", 2))
sketch9.addConstraint(Sketcher.Constraint("Horizontal", 3))
sketch9.addConstraint(Sketcher.Constraint("DistanceX", 1, 2, 1, 1, Q("2 mm")))
sketch9.addConstraint(Sketcher.Constraint("DistanceY", 0, 1, 0, 2, Q("23 mm")))
sketch9.addConstraint(Sketcher.Constraint("DistanceY", -1, 1, 0, 2, Q("2 mm")))
sketch9.addConstraint(Sketcher.Constraint("DistanceX", 0, 2, -1, 1, Q("28.1 mm")))
pad7 = body.newObject("PartDesign::Pad", "Pad006")
pad7.Profile = sketch9
pad7.Length = 38.74

sketch10 = body.newObject("Sketcher::SketchObject", "Sketch009")
sketch10.AttachmentSupport = (doc.getObject("XY_Plane"), [""])
sketch10.MapMode = "FlatFace"
sketch10.AttachmentOffset = App.Placement(Vector(0, 0, 11.5), App.Rotation())
sketch10.addGeometry(Part.LineSegment(Vector(28.1, 0, 0), Vector(28.1, 2, 0)), False)
sketch10.addGeometry(Part.LineSegment(Vector(28.1, 2, 0), Vector(-28.1, 2, 0)), False)
sketch10.addGeometry(Part.LineSegment(Vector(-28.1, 2, 0), Vector(-28.1, 0, 0)), False)
sketch10.addGeometry(Part.LineSegment(Vector(-28.1, 0, 0), Vector(28.1, 0, 0)), False)
sketch10.addConstraint(Sketcher.Constraint("Coincident", 0, 2, 1, 1))
sketch10.addConstraint(Sketcher.Constraint("Coincident", 1, 2, 2, 1))
sketch10.addConstraint(Sketcher.Constraint("Coincident", 2, 2, 3, 1))
sketch10.addConstraint(Sketcher.Constraint("Coincident", 3, 2, 0, 1))
sketch10.addConstraint(Sketcher.Constraint("Vertical", 0))
sketch10.addConstraint(Sketcher.Constraint("Horizontal", 1))
sketch10.addConstraint(Sketcher.Constraint("Vertical", 2))
sketch10.addConstraint(Sketcher.Constraint("Horizontal", 3))
sketch10.addConstraint(Sketcher.Constraint("Symmetric", 2, 2, 3, 2, -1, 1))
sketch10.addConstraint(Sketcher.Constraint("DistanceY", 0, 1, 0, 2, Q("2 mm")))
sketch10.addConstraint(Sketcher.Constraint("DistanceX", 1, 2, 1, 1, Q("56.2 mm")))
pad8 = body.newObject("PartDesign::Pad", "Pad007")
pad8.Profile = sketch10
pad8.Length = 42.74

sketch11 = body.newObject("Sketcher::SketchObject", "Sketch010")
sketch11.AttachmentSupport = (doc.getObject("XZ_Plane"), [""])
sketch11.MapMode = "FlatFace"
sketch11.addGeometry(Part.LineSegment(Vector(-28.1, 33.5, 0), Vector(-28.1, 11.5, 0)), False)
sketch11.addGeometry(Part.LineSegment(Vector(-28.1, 11.5, 0), Vector(28.1, 11.5, 0)), False)
sketch11.addGeometry(Part.LineSegment(Vector(28.1, 11.5, 0), Vector(28.1, 33.5, 0)), False)
sketch11.addGeometry(Part.LineSegment(Vector(28.1, 33.5, 0), Vector(-28.1, 33.5, 0)), False)
sketch11.addConstraint(Sketcher.Constraint("Coincident", 0, 2, 1, 1))
sketch11.addConstraint(Sketcher.Constraint("Coincident", 1, 2, 2, 1))
sketch11.addConstraint(Sketcher.Constraint("Coincident", 2, 2, 3, 1))
sketch11.addConstraint(Sketcher.Constraint("Coincident", 3, 2, 0, 1))
sketch11.addConstraint(Sketcher.Constraint("Vertical", 0))
sketch11.addConstraint(Sketcher.Constraint("Horizontal", 1))
sketch11.addConstraint(Sketcher.Constraint("Vertical", 2))
sketch11.addConstraint(Sketcher.Constraint("Horizontal", 3))
sketch11.addConstraint(Sketcher.Constraint("DistanceY", 0, 2, 0, 1, Q("22 mm")))
sketch11.addConstraint(Sketcher.Constraint("DistanceX", 1, 1, 1, 2, Q("56.2 mm")))
sketch11.addConstraint(Sketcher.Constraint("DistanceX", 0, 2, -1, 1, Q("28.1 mm")))
sketch11.addConstraint(Sketcher.Constraint("DistanceY", -1, 1, 0, 2, Q("11.5 mm")))
pocket3 = body.newObject("PartDesign::Pocket", "Pocket002")
pocket3.Profile = sketch11
pocket3.Length = 2

sketch12 = body.newObject("Sketcher::SketchObject", "Sketch011")
sketch12.AttachmentSupport = (doc.getObject("XZ_Plane"), [""])
sketch12.MapMode = "FlatFace"
sketch12.AttachmentOffset = App.Placement(Vector(0, 0, 21), App.Rotation())
sketch12.addGeometry(Part.LineSegment(Vector(-30.1, 54.24, 0), Vector(-30.1, 39.24, 0)), False)
sketch12.addGeometry(Part.LineSegment(Vector(-30.1, 39.24, 0), Vector(-28.1, 39.24, 0)), False)
sketch12.addGeometry(Part.LineSegment(Vector(-28.1, 39.24, 0), Vector(-28.1, 54.24, 0)), False)
sketch12.addGeometry(Part.LineSegment(Vector(-28.1, 54.24, 0), Vector(-30.1, 54.24, 0)), False)
sketch12.addConstraint(Sketcher.Constraint("Coincident", 0, 2, 1, 1))
sketch12.addConstraint(Sketcher.Constraint("Coincident", 1, 2, 2, 1))
sketch12.addConstraint(Sketcher.Constraint("Coincident", 2, 2, 3, 1))
sketch12.addConstraint(Sketcher.Constraint("Coincident", 3, 2, 0, 1))
sketch12.addConstraint(Sketcher.Constraint("Vertical", 0))
sketch12.addConstraint(Sketcher.Constraint("Horizontal", 1))
sketch12.addConstraint(Sketcher.Constraint("Vertical", 2))
sketch12.addConstraint(Sketcher.Constraint("Horizontal", 3))
sketch12.addConstraint(Sketcher.Constraint("DistanceX", 1, 1, 1, 2, Q("2 mm")))
sketch12.addConstraint(Sketcher.Constraint("DistanceY", 0, 2, 0, 1, Q("15 mm")))
sketch12.addConstraint(Sketcher.Constraint("DistanceX", 0, 2, -1, 1, Q("30.1 mm")))
sketch12.addConstraint(Sketcher.Constraint("DistanceY", -1, 1, 0, 2, Q("39.24 mm")))
pad9 = body.newObject("PartDesign::Pad", "Pad008")
pad9.Profile = sketch12
pad9.Length = 69

sketch13 = body.newObject("Sketcher::SketchObject", "Sketch012")
sketch13.AttachmentSupport = (doc.getObject("XZ_Plane"), [""])
sketch13.MapMode = "FlatFace"
sketch13.addGeometry(Part.LineSegment(Vector(26.1, 54.24, 0), Vector(26.1, 39.24, 0)), False)
sketch13.addGeometry(Part.LineSegment(Vector(26.1, 39.24, 0), Vector(28.1, 39.24, 0)), False)
sketch13.addGeometry(Part.LineSegment(Vector(28.1, 39.24, 0), Vector(28.1, 54.24, 0)), False)
sketch13.addGeometry(Part.LineSegment(Vector(28.1, 54.24, 0), Vector(26.1, 54.24, 0)), False)
sketch13.addConstraint(Sketcher.Constraint("Coincident", 0, 2, 1, 1))
sketch13.addConstraint(Sketcher.Constraint("Coincident", 1, 2, 2, 1))
sketch13.addConstraint(Sketcher.Constraint("Coincident", 2, 2, 3, 1))
sketch13.addConstraint(Sketcher.Constraint("Coincident", 3, 2, 0, 1))
sketch13.addConstraint(Sketcher.Constraint("Vertical", 0))
sketch13.addConstraint(Sketcher.Constraint("Horizontal", 1))
sketch13.addConstraint(Sketcher.Constraint("Vertical", 2))
sketch13.addConstraint(Sketcher.Constraint("Horizontal", 3))
sketch13.addConstraint(Sketcher.Constraint("DistanceX", 1, 1, 1, 2, Q("2 mm")))
sketch13.addConstraint(Sketcher.Constraint("DistanceY", 0, 2, 0, 1, Q("15 mm")))
sketch13.addConstraint(Sketcher.Constraint("DistanceX", -1, 1, 0, 2, Q("26.1 mm")))
sketch13.addConstraint(Sketcher.Constraint("DistanceY", -1, 1, 0, 2, Q("39.24 mm")))
pad10 = body.newObject("PartDesign::Pad", "Pad009")
pad10.Profile = sketch13
pad10.Length = 90

sketch14 = body.newObject("Sketcher::SketchObject", "Sketch013")
sketch14.AttachmentSupport = (doc.getObject("XZ_Plane"), [""])
sketch14.MapMode = "FlatFace"
sketch14.addGeometry(Part.LineSegment(Vector(20.32, 43.44, 0), Vector(20.32, 39.24, 0)), False)
sketch14.addGeometry(Part.LineSegment(Vector(20.32, 39.24, 0), Vector(26.118204, 39.24, 0)), False)
sketch14.addGeometry(Part.LineSegment(Vector(26.118204, 39.24, 0), Vector(26.118204, 43.44, 0)), False)
sketch14.addGeometry(Part.LineSegment(Vector(26.118204, 43.44, 0), Vector(23.92, 41.24, 0)), False)
sketch14.addGeometry(Part.LineSegment(Vector(23.92, 41.24, 0), Vector(22.12, 41.24, 0)), False)
sketch14.addGeometry(Part.LineSegment(Vector(22.12, 41.24, 0), Vector(22.12, 43.44, 0)), False)
sketch14.addGeometry(Part.LineSegment(Vector(22.12, 43.44, 0), Vector(20.32, 43.44, 0)), False)
sketch14.addGeometry(Part.LineSegment(Vector(20.32, 54.24, 0), Vector(20.32, 50.04, 0)), False)
sketch14.addGeometry(Part.LineSegment(Vector(20.32, 50.04, 0), Vector(22.12, 50.04, 0)), False)
sketch14.addGeometry(Part.LineSegment(Vector(22.12, 50.04, 0), Vector(22.12, 52.24, 0)), False)
sketch14.addGeometry(Part.LineSegment(Vector(22.12, 52.24, 0), Vector(23.92, 52.24, 0)), False)
sketch14.addGeometry(Part.LineSegment(Vector(23.92, 52.24, 0), Vector(26.118204, 50.04, 0)), False)
sketch14.addGeometry(Part.LineSegment(Vector(26.118204, 50.04, 0), Vector(26.118204, 54.24, 0)), False)
sketch14.addGeometry(Part.LineSegment(Vector(26.118204, 54.24, 0), Vector(20.32, 54.24, 0)), False)
sketch14.addGeometry(Part.LineSegment(Vector(-22.32, 39.24, 0), Vector(-22.32, 43.44, 0)), False)
sketch14.addGeometry(Part.LineSegment(Vector(-22.32, 43.44, 0), Vector(-24.12, 43.44, 0)), False)
sketch14.addGeometry(Part.LineSegment(Vector(-24.12, 43.44, 0), Vector(-24.12, 41.24, 0)), False)
sketch14.addGeometry(Part.LineSegment(Vector(-24.12, 41.24, 0), Vector(-25.92, 41.24, 0)), False)
sketch14.addGeometry(Part.LineSegment(Vector(-25.92, 41.24, 0), Vector(-28.12, 43.438204, 0)), False)
sketch14.addGeometry(Part.LineSegment(Vector(-28.12, 43.438204, 0), Vector(-28.12, 39.24, 0)), False)
sketch14.addGeometry(Part.LineSegment(Vector(-28.12, 39.24, 0), Vector(-22.32, 39.24, 0)), False)
sketch14.addGeometry(Part.LineSegment(Vector(-22.32, 50.04, 0), Vector(-22.32, 54.24, 0)), False)
sketch14.addGeometry(Part.LineSegment(Vector(-22.32, 54.24, 0), Vector(-28.118204, 54.24, 0)), False)
sketch14.addGeometry(Part.LineSegment(Vector(-28.118204, 54.24, 0), Vector(-28.118204, 50.04, 0)), False)
sketch14.addGeometry(Part.LineSegment(Vector(-28.118204, 50.04, 0), Vector(-25.92, 52.24, 0)), False)
sketch14.addGeometry(Part.LineSegment(Vector(-25.92, 52.24, 0), Vector(-24.12, 52.24, 0)), False)
sketch14.addGeometry(Part.LineSegment(Vector(-24.12, 52.24, 0), Vector(-24.12, 50.04, 0)), False)
sketch14.addGeometry(Part.LineSegment(Vector(-24.12, 50.04, 0), Vector(-22.32, 50.04, 0)), False)
sketch14.addConstraint(Sketcher.Constraint("Coincident", 0, 2, 1, 1))
sketch14.addConstraint(Sketcher.Constraint("Coincident", 1, 2, 2, 1))
sketch14.addConstraint(Sketcher.Constraint("Coincident", 2, 2, 3, 1))
sketch14.addConstraint(Sketcher.Constraint("Coincident", 3, 2, 4, 1))
sketch14.addConstraint(Sketcher.Constraint("Coincident", 4, 2, 5, 1))
sketch14.addConstraint(Sketcher.Constraint("Coincident", 5, 2, 6, 1))
sketch14.addConstraint(Sketcher.Constraint("Coincident", 6, 2, 0, 1))
sketch14.addConstraint(Sketcher.Constraint("Coincident", 7, 2, 8, 1))
sketch14.addConstraint(Sketcher.Constraint("Coincident", 8, 2, 9, 1))
sketch14.addConstraint(Sketcher.Constraint("Coincident", 9, 2, 10, 1))
sketch14.addConstraint(Sketcher.Constraint("Coincident", 10, 2, 11, 1))
sketch14.addConstraint(Sketcher.Constraint("Coincident", 11, 2, 12, 1))
sketch14.addConstraint(Sketcher.Constraint("Coincident", 12, 2, 13, 1))
sketch14.addConstraint(Sketcher.Constraint("Coincident", 13, 2, 7, 1))
sketch14.addConstraint(Sketcher.Constraint("Coincident", 14, 2, 15, 1))
sketch14.addConstraint(Sketcher.Constraint("Coincident", 15, 2, 16, 1))
sketch14.addConstraint(Sketcher.Constraint("Coincident", 16, 2, 17, 1))
sketch14.addConstraint(Sketcher.Constraint("Coincident", 17, 2, 18, 1))
sketch14.addConstraint(Sketcher.Constraint("Coincident", 18, 2, 19, 1))
sketch14.addConstraint(Sketcher.Constraint("Coincident", 19, 2, 20, 1))
sketch14.addConstraint(Sketcher.Constraint("Coincident", 20, 2, 14, 1))
sketch14.addConstraint(Sketcher.Constraint("Coincident", 21, 2, 22, 1))
sketch14.addConstraint(Sketcher.Constraint("Coincident", 22, 2, 23, 1))
sketch14.addConstraint(Sketcher.Constraint("Coincident", 23, 2, 24, 1))
sketch14.addConstraint(Sketcher.Constraint("Coincident", 24, 2, 25, 1))
sketch14.addConstraint(Sketcher.Constraint("Coincident", 25, 2, 26, 1))
sketch14.addConstraint(Sketcher.Constraint("Coincident", 26, 2, 27, 1))
sketch14.addConstraint(Sketcher.Constraint("Coincident", 27, 2, 21, 1))
sketch14.addConstraint(Sketcher.Constraint("Vertical", 0))
sketch14.addConstraint(Sketcher.Constraint("Horizontal", 1))
sketch14.addConstraint(Sketcher.Constraint("Vertical", 2))
sketch14.addConstraint(Sketcher.Constraint("Horizontal", 4))
sketch14.addConstraint(Sketcher.Constraint("Vertical", 5))
sketch14.addConstraint(Sketcher.Constraint("Horizontal", 6))
sketch14.addConstraint(Sketcher.Constraint("Vertical", 7))
sketch14.addConstraint(Sketcher.Constraint("Horizontal", 8))
sketch14.addConstraint(Sketcher.Constraint("Vertical", 9))
sketch14.addConstraint(Sketcher.Constraint("Horizontal", 10))
sketch14.addConstraint(Sketcher.Constraint("Vertical", 12))
sketch14.addConstraint(Sketcher.Constraint("Horizontal", 13))
sketch14.addConstraint(Sketcher.Constraint("Vertical", 14))
sketch14.addConstraint(Sketcher.Constraint("Horizontal", 15))
sketch14.addConstraint(Sketcher.Constraint("Vertical", 16))
sketch14.addConstraint(Sketcher.Constraint("Horizontal", 17))
sketch14.addConstraint(Sketcher.Constraint("Vertical", 19))
sketch14.addConstraint(Sketcher.Constraint("Horizontal", 20))
sketch14.addConstraint(Sketcher.Constraint("Vertical", 21))
sketch14.addConstraint(Sketcher.Constraint("Horizontal", 22))
sketch14.addConstraint(Sketcher.Constraint("Vertical", 23))
sketch14.addConstraint(Sketcher.Constraint("Horizontal", 25))
sketch14.addConstraint(Sketcher.Constraint("Vertical", 26))
sketch14.addConstraint(Sketcher.Constraint("Horizontal", 27))
sketch14.addConstraint(Sketcher.Constraint("Perpendicular", 3, 18))
sketch14.addConstraint(Sketcher.Constraint("Perpendicular", 18, 24))
sketch14.addConstraint(Sketcher.Constraint("Horizontal", 2, 2, 5, 2))
sketch14.addConstraint(Sketcher.Constraint("Horizontal", 8, 2, 11, 2))
sketch14.addConstraint(Sketcher.Constraint("Horizontal", 6, 2, 14, 2))
sketch14.addConstraint(Sketcher.Constraint("Horizontal", 4, 2, 16, 2))
sketch14.addConstraint(Sketcher.Constraint("Horizontal", 1, 2, 19, 2))
sketch14.addConstraint(Sketcher.Constraint("Horizontal", 13, 2, 21, 2))
sketch14.addConstraint(Sketcher.Constraint("Horizontal", 11, 2, 23, 2))
sketch14.addConstraint(Sketcher.Constraint("Horizontal", 10, 2, 24, 2))
sketch14.addConstraint(Sketcher.Constraint("Horizontal", 23, 2, 26, 2))
sketch14.addConstraint(Sketcher.Constraint("Vertical", 6, 2, 7, 2))
sketch14.addConstraint(Sketcher.Constraint("Vertical", 5, 2, 8, 2))
sketch14.addConstraint(Sketcher.Constraint("Vertical", 3, 2, 10, 2))
sketch14.addConstraint(Sketcher.Constraint("Vertical", 2, 2, 11, 2))
sketch14.addConstraint(Sketcher.Constraint("Vertical", 20, 2, 21, 2))
sketch14.addConstraint(Sketcher.Constraint("Vertical", 17, 2, 24, 2))
sketch14.addConstraint(Sketcher.Constraint("Vertical", 16, 2, 25, 2))
sketch14.addConstraint(Sketcher.Constraint("Equal", 4, 6))
sketch14.addConstraint(Sketcher.Constraint("Equal", 10, 15))
sketch14.addConstraint(Sketcher.Constraint("Equal", 15, 17))
sketch14.addConstraint(Sketcher.Constraint("Equal", 13, 22))
sketch14.addConstraint(Sketcher.Constraint("Equal", 2, 7))
sketch14.addConstraint(Sketcher.Constraint("Equal", 11, 18))
sketch14.addConstraint(Sketcher.Constraint("DistanceX", 4, 2, 4, 1, Q("1.8 mm")))
sketch14.addConstraint(Sketcher.Constraint("DistanceX", 20, 1, 20, 2, Q("5.8 mm")))
sketch14.addConstraint(Sketcher.Constraint("DistanceY", 0, 2, 0, 1, Q("4.2 mm")))
sketch14.addConstraint(Sketcher.Constraint("DistanceY", 16, 2, 21, 2, Q("13 mm")))
sketch14.addConstraint(Sketcher.Constraint("Distance", 3, Q("3.11 mm")))
sketch14.addConstraint(Sketcher.Constraint("DistanceX", -1, 1, 0, 2, Q("20.32 mm")))
sketch14.addConstraint(Sketcher.Constraint("DistanceY", -1, 1, 0, 2, Q("39.24 mm")))
sketch14.addConstraint(Sketcher.Constraint("DistanceX", 14, 2, -1, 1, Q("22.32 mm")))
pad11 = body.newObject("PartDesign::Pad", "Pad010")
pad11.Profile = sketch14
pad11.Length = 65

doc.recompute()
